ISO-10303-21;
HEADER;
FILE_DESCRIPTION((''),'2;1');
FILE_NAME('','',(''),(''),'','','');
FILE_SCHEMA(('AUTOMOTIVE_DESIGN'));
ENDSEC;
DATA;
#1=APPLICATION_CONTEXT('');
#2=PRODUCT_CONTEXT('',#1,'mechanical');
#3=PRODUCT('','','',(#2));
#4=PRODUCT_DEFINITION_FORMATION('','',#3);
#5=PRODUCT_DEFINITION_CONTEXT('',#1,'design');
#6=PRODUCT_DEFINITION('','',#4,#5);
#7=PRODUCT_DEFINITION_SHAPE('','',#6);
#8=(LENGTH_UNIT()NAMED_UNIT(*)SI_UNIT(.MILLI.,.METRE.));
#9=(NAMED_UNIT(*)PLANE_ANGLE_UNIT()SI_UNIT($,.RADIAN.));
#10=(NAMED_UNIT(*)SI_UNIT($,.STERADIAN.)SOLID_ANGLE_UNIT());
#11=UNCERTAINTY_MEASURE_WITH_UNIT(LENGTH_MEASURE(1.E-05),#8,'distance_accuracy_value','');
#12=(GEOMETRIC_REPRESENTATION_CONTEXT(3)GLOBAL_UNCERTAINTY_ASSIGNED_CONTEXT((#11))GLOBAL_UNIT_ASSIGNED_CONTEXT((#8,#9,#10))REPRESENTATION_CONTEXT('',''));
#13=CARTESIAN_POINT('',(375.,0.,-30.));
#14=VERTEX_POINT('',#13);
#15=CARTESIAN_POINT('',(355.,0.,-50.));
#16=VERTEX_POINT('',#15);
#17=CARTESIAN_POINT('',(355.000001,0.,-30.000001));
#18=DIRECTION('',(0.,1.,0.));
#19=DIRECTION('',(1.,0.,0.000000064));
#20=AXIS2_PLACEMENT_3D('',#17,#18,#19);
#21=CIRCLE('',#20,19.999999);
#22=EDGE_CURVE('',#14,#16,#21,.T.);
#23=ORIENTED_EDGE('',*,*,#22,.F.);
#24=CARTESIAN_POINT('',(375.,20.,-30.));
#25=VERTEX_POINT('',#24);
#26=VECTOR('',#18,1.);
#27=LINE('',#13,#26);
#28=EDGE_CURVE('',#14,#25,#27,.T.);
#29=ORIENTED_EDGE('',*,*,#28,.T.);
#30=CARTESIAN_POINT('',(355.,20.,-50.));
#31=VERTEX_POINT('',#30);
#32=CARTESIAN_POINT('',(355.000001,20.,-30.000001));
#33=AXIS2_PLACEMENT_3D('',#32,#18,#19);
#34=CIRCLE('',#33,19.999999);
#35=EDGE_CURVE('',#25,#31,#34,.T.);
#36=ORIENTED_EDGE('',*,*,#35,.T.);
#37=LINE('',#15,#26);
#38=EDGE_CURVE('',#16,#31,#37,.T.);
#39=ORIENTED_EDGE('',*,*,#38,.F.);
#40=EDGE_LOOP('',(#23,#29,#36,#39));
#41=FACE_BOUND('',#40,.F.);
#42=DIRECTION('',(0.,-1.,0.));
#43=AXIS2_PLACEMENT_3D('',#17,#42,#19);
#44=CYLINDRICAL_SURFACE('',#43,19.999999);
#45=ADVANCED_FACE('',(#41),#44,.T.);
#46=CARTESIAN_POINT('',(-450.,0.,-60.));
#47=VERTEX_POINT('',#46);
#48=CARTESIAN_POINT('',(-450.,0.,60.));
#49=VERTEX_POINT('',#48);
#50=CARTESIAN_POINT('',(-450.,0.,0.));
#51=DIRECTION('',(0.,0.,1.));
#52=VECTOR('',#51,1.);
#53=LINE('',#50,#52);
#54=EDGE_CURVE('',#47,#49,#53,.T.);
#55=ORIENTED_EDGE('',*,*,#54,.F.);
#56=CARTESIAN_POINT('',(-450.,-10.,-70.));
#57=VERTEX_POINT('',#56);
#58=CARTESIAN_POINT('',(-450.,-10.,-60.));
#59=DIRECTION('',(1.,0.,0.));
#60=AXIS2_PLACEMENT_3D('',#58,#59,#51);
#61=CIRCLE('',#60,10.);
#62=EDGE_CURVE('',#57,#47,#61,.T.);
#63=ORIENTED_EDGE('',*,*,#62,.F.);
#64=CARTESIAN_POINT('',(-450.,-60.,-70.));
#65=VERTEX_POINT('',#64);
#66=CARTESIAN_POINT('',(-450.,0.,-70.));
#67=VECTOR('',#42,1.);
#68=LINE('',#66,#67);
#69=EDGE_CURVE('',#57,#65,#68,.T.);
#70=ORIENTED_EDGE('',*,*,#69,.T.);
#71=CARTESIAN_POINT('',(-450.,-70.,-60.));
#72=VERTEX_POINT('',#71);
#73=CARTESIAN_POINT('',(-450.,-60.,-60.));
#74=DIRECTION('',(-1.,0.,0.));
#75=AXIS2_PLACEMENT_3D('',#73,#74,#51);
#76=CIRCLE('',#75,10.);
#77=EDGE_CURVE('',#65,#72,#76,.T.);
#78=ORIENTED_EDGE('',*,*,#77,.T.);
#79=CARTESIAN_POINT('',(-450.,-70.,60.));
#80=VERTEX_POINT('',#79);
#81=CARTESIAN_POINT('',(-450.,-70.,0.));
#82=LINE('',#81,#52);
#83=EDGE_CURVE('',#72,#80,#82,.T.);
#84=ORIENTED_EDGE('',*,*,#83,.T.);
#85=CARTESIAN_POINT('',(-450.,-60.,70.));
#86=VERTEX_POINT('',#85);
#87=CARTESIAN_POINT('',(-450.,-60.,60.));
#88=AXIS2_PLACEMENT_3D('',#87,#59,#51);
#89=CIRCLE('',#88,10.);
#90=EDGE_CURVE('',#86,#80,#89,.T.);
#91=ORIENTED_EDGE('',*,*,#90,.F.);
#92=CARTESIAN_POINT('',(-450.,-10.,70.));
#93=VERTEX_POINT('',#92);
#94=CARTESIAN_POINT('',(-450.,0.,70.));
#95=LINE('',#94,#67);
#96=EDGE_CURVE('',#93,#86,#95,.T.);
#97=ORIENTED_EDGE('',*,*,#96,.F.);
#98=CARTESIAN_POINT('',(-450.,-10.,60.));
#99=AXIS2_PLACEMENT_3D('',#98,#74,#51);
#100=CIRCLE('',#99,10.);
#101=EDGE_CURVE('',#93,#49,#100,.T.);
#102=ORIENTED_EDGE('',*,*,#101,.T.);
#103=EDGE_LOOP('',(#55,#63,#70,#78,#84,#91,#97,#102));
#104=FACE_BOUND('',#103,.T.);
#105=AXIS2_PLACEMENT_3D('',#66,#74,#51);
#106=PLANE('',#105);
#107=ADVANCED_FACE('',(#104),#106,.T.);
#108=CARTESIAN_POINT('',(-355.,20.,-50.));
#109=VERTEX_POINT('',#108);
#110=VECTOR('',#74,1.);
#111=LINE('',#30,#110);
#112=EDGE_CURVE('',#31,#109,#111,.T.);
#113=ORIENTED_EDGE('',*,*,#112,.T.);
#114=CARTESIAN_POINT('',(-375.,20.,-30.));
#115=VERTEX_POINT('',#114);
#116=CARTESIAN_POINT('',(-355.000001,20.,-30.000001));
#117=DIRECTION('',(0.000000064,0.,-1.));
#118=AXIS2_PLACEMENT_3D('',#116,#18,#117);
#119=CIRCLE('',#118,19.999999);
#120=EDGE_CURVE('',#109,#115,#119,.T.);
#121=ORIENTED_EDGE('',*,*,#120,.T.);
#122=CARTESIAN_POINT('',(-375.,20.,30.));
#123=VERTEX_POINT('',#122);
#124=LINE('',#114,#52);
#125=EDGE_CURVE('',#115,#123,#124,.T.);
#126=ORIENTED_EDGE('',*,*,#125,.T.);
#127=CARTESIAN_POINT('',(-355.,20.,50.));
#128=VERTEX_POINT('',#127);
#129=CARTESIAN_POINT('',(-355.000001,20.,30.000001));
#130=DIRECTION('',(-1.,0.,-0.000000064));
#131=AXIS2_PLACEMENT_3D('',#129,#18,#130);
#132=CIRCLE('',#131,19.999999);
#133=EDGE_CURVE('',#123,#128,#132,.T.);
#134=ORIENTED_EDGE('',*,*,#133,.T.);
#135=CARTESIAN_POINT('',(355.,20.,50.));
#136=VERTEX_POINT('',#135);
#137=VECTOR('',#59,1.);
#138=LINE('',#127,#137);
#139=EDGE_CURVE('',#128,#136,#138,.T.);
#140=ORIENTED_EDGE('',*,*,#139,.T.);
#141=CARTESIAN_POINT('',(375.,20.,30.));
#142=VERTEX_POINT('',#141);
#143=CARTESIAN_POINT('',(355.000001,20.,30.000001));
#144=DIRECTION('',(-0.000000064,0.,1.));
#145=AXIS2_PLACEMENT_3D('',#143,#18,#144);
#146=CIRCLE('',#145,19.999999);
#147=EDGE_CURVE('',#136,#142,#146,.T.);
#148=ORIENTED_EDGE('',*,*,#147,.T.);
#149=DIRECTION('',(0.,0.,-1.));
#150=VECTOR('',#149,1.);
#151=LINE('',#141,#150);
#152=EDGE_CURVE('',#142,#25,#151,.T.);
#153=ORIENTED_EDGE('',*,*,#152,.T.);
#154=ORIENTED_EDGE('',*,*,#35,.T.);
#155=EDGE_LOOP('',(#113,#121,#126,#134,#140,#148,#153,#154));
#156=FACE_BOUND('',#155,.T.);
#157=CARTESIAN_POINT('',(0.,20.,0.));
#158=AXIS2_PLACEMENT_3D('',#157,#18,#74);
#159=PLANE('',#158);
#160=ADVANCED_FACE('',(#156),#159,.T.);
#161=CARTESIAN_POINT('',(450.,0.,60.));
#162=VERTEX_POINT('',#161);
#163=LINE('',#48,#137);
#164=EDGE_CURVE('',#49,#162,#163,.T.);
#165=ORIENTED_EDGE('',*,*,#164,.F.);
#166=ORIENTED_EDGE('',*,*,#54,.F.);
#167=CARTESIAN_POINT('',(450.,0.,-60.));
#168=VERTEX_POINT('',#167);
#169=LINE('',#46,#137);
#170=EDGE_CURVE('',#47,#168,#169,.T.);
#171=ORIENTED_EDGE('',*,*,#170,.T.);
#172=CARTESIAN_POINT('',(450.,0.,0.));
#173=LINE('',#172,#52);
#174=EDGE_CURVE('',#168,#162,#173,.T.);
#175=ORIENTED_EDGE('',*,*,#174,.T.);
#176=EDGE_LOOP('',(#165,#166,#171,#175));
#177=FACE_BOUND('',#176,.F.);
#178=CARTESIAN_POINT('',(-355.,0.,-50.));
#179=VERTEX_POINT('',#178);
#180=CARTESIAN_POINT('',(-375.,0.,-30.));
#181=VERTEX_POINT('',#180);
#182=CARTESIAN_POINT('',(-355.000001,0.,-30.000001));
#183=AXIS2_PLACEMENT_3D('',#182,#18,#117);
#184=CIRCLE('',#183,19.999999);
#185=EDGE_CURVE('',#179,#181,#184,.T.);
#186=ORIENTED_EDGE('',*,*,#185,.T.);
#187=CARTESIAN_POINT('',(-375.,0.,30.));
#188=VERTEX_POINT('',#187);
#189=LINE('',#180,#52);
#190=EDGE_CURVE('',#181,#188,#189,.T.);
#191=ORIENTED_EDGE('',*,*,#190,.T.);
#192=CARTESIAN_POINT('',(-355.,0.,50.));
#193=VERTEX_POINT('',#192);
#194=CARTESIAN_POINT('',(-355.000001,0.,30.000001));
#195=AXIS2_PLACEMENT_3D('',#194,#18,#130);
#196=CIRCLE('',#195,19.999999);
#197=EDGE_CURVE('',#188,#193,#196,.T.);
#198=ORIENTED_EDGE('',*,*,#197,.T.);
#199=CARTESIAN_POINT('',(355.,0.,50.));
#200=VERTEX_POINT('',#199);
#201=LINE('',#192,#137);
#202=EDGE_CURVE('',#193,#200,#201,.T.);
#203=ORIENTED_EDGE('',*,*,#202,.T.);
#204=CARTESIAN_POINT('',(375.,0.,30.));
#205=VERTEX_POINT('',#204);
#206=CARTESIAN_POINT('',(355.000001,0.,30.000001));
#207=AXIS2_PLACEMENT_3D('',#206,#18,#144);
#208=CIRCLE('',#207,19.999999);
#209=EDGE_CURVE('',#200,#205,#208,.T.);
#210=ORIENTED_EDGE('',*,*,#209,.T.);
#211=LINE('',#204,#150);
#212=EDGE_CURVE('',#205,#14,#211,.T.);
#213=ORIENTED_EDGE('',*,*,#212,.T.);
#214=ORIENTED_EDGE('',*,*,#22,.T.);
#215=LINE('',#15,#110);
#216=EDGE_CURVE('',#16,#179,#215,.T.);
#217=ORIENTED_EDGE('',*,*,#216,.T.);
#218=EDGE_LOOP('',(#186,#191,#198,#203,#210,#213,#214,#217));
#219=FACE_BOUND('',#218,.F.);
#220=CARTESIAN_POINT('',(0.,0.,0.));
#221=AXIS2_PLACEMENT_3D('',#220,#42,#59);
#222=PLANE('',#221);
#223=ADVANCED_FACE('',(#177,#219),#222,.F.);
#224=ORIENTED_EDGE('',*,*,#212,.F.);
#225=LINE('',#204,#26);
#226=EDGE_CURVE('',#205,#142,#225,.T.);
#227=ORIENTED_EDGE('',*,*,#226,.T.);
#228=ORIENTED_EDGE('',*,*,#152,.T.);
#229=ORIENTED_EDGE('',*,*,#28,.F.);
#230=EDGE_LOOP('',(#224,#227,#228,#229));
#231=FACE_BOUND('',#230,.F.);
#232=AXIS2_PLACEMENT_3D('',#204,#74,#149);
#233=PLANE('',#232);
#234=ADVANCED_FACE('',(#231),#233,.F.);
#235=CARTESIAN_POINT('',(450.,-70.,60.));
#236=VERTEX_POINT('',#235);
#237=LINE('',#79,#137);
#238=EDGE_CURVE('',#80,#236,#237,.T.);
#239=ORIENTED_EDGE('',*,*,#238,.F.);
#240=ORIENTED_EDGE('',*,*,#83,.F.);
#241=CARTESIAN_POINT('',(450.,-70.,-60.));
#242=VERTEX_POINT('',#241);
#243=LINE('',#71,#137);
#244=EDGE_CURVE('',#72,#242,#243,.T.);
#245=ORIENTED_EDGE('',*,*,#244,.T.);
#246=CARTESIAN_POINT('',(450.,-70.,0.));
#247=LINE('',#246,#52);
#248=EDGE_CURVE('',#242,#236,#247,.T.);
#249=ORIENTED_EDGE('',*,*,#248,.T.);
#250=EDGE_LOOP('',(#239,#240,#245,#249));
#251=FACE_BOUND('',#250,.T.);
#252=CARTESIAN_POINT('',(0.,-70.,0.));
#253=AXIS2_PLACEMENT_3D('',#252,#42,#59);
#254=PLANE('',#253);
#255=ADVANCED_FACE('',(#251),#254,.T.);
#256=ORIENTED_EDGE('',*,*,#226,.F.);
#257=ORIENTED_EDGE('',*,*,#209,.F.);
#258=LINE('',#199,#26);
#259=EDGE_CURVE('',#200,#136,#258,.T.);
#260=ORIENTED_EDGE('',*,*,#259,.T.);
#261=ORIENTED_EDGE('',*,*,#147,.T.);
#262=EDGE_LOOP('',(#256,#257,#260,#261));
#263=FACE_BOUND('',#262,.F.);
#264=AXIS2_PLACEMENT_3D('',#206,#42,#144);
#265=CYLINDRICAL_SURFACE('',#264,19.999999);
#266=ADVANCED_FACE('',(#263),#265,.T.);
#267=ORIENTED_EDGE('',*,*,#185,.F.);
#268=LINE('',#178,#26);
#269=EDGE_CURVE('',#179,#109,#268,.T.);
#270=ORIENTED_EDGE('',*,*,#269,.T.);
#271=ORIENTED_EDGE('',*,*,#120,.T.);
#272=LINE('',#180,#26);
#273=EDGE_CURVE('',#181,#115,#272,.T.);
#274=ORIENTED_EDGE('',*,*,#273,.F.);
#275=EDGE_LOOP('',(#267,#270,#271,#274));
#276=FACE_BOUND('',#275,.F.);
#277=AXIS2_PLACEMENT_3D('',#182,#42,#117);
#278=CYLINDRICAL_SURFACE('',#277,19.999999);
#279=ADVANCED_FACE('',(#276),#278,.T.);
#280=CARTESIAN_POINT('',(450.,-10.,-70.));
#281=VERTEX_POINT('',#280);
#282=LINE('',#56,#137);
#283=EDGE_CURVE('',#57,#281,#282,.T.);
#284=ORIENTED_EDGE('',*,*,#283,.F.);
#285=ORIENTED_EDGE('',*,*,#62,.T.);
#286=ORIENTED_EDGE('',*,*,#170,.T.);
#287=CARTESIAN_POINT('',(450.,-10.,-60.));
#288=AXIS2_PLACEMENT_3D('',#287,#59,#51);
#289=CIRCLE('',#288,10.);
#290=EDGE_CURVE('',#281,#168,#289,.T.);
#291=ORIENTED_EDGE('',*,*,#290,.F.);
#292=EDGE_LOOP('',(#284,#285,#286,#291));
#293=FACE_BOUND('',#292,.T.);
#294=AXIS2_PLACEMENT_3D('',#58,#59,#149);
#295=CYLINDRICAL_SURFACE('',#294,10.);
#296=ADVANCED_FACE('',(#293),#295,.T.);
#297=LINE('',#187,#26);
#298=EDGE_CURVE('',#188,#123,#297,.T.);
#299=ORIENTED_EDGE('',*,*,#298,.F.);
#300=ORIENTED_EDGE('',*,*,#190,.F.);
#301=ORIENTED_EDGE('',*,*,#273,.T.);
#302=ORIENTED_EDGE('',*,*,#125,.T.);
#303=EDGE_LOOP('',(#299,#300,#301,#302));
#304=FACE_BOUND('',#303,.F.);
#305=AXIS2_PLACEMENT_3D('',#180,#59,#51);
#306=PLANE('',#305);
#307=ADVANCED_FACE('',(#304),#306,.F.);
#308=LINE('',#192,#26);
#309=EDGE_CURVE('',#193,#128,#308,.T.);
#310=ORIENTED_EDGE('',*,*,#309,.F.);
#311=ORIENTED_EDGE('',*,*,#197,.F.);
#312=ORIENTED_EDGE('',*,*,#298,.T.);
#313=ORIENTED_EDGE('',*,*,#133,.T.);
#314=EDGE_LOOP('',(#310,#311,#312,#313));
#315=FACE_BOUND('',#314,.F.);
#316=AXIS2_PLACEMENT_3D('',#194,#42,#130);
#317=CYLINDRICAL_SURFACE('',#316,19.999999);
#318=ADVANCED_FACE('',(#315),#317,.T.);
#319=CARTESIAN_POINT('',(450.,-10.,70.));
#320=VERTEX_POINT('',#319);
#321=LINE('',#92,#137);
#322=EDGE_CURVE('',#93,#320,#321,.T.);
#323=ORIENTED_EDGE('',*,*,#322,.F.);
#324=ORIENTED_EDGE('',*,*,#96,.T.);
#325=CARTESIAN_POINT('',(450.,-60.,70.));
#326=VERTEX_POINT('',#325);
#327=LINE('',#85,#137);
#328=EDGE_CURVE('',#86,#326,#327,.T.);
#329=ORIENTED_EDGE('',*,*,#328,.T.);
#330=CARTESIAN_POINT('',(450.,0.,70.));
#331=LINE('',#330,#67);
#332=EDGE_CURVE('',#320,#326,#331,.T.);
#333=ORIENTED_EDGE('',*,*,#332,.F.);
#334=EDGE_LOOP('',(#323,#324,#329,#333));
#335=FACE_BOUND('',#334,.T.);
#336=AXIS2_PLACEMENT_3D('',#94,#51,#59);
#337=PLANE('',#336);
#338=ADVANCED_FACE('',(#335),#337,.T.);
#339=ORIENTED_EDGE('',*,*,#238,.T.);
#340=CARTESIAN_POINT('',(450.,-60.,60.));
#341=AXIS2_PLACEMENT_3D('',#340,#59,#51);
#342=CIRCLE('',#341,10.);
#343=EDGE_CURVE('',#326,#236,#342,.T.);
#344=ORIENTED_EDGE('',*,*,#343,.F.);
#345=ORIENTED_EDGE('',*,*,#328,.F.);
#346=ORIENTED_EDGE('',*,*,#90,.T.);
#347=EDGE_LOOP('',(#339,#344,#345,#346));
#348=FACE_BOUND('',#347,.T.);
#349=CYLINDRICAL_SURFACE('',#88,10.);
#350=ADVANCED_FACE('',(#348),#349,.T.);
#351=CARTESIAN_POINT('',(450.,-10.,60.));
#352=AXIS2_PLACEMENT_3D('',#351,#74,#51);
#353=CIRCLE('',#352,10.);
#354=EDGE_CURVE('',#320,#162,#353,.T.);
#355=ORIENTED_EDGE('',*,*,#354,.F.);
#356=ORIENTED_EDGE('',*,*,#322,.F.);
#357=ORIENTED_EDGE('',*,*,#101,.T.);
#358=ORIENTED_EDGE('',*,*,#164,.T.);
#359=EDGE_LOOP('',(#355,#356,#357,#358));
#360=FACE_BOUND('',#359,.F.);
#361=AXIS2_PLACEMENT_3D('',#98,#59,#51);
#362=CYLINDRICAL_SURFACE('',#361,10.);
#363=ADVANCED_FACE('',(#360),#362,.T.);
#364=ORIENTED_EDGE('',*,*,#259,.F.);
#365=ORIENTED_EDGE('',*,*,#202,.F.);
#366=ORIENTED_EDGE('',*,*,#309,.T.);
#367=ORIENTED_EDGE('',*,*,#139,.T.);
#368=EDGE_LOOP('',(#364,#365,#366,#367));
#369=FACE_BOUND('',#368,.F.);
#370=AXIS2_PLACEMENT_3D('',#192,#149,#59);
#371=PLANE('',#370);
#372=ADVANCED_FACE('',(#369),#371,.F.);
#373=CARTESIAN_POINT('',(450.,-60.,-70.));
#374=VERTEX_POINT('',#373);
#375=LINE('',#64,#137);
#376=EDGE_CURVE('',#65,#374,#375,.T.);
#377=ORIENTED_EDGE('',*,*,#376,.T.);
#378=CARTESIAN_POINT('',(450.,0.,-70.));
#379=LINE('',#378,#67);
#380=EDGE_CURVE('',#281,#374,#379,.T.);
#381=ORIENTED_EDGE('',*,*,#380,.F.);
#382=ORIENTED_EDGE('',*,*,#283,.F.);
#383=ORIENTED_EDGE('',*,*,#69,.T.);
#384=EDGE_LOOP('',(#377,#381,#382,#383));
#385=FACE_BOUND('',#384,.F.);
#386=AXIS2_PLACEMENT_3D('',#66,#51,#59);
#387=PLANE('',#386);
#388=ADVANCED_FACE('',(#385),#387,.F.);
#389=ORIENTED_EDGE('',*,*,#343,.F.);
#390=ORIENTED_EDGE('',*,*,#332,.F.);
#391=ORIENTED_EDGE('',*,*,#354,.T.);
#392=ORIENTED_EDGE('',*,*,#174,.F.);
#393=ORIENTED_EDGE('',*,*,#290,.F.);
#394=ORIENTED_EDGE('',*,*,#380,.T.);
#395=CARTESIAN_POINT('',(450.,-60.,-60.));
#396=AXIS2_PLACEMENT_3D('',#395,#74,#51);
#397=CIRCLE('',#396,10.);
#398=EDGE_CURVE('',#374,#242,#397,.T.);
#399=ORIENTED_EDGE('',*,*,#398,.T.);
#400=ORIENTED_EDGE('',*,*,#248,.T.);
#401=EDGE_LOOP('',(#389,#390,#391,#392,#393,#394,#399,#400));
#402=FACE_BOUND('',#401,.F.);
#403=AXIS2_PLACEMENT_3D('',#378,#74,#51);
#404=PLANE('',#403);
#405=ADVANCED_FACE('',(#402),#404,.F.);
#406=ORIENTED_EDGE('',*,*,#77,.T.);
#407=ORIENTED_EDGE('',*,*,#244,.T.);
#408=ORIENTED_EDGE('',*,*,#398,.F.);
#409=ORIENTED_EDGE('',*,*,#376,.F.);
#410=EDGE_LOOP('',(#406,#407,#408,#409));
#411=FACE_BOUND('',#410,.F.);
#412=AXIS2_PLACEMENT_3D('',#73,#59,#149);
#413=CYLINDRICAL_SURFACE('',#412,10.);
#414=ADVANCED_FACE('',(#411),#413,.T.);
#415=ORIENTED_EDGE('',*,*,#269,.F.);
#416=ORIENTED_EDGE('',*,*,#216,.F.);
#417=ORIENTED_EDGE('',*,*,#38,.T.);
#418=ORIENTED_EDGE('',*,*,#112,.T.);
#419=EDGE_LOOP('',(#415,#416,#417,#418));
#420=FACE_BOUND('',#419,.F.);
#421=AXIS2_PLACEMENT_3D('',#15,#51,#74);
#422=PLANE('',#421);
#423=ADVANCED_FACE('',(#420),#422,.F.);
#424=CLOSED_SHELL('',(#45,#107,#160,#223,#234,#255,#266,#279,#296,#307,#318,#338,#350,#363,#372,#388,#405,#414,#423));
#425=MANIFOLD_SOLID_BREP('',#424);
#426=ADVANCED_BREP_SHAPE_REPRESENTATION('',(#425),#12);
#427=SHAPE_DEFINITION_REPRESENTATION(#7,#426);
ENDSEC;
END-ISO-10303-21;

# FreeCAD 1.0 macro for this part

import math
import FreeCAD as App
import Part
import Sketcher

V = App.Vector


def edges_at(feature, points):
    """Names of the edges that pass closest to the given points."""
    edges = feature.Shape.Edges
    near = lambda p: min(range(len(edges)), key=lambda i: edges[i].distToShape(Part.Vertex(*p))[0])
    return sorted({f"Edge{near(p) + 1}" for p in points})

doc = App.newDocument("Part")
body = doc.addObject("PartDesign::Body", "Body")

sketch1 = body.newObject("Sketcher::SketchObject", "Sketch")
sketch1.AttachmentSupport = (doc.getObject("XZ_Plane"), [""])
sketch1.MapMode = "FlatFace"
sketch1.addGeometry([
    Part.LineSegment(V(-450, 70, 0), V(-450, -70, 0)),
    Part.LineSegment(V(-450, -70, 0), V(450, -70, 0)),
    Part.LineSegment(V(450, -70, 0), V(450, 70, 0)),
    Part.LineSegment(V(450, 70, 0), V(-450, 70, 0)),
], False)
sketch1.addConstraint([
    Sketcher.Constraint("Coincident", 0, 2, 1, 1),
    Sketcher.Constraint("Coincident", 1, 2, 2, 1),
    Sketcher.Constraint("Coincident", 2, 2, 3, 1),
    Sketcher.Constraint("Coincident", 3, 2, 0, 1),
    Sketcher.Constraint("Vertical", 0),
    Sketcher.Constraint("Horizontal", 1),
    Sketcher.Constraint("Vertical", 2),
    Sketcher.Constraint("Horizontal", 3),
    Sketcher.Constraint("Symmetric", 0, 2, 2, 2, -1, 1),
    Sketcher.Constraint("DistanceX", 1, 1, 1, 2, 900.0),
    Sketcher.Constraint("DistanceY", 0, 2, 0, 1, 140.0),
])
pad1 = body.newObject("PartDesign::Pad", "Pad")
pad1.Profile = sketch1
pad1.Length = 70
doc.recompute()

fillet = body.newObject("PartDesign::Fillet", "Fillet")
fillet.Base = (pad1, edges_at(pad1, [
    (0, -70, 70),
    (0, 0, 70),
    (0, -70, -70),
    (0, 0, -70),
]))
fillet.Radius = 10

sketch2 = body.newObject("Sketcher::SketchObject", "Sketch001")
sketch2.AttachmentSupport = (doc.getObject("XZ_Plane"), [""])
sketch2.MapMode = "FlatFace"
sketch2.addGeometry([
    Part.ArcOfCircle(Part.Circle(V(-355, 30, 0), V(0, 0, 1), 20), math.radians(90), math.radians(180)),
    Part.LineSegment(V(-355, 50, 0), V(355, 50, 0)),
    Part.ArcOfCircle(Part.Circle(V(355, 30, 0), V(0, 0, 1), 20), math.radians(0), math.radians(90)),
    Part.LineSegment(V(375, 30, 0), V(375, -30, 0)),
    Part.ArcOfCircle(Part.Circle(V(355, -30, 0), V(0, 0, 1), 20), math.radians(-90), math.radians(0)),
    Part.LineSegment(V(355, -50, 0), V(-355, -50, 0)),
    Part.ArcOfCircle(Part.Circle(V(-355, -30, 0), V(0, 0, 1), 20), math.radians(180), math.radians(270)),
    Part.LineSegment(V(-375, -30, 0), V(-375, 30, 0)),
], False)
sketch2.addConstraint([
    Sketcher.Constraint("Tangent", 0, 1, 1, 1),
    Sketcher.Constraint("Tangent", 1, 2, 2, 2),
    Sketcher.Constraint("Tangent", 2, 1, 3, 1),
    Sketcher.Constraint("Tangent", 3, 2, 4, 2),
    Sketcher.Constraint("Tangent", 4, 1, 5, 1),
    Sketcher.Constraint("Tangent", 5, 2, 6, 2),
    Sketcher.Constraint("Tangent", 6, 1, 7, 1),
    Sketcher.Constraint("Tangent", 7, 2, 0, 2),
    Sketcher.Constraint("Horizontal", 1),
    Sketcher.Constraint("Vertical", 3),
    Sketcher.Constraint("Horizontal", 5),
    Sketcher.Constraint("Vertical", 7),
    Sketcher.Constraint("Equal", 0, 2),
    Sketcher.Constraint("Equal", 2, 4),
    Sketcher.Constraint("Equal", 4, 6),
    Sketcher.Constraint("Symmetric", 0, 3, 4, 3, -1, 1),
    Sketcher.Constraint("Radius", 0, 19.999999),
    Sketcher.Constraint("DistanceX", 1, 1, 1, 2, 710.0),
    Sketcher.Constraint("DistanceY", 3, 2, 3, 1, 60.0),
])
pad2 = body.newObject("PartDesign::Pad", "Pad001")
pad2.Profile = sketch2
pad2.Length = 20
pad2.Reversed = True

doc.recompute()
